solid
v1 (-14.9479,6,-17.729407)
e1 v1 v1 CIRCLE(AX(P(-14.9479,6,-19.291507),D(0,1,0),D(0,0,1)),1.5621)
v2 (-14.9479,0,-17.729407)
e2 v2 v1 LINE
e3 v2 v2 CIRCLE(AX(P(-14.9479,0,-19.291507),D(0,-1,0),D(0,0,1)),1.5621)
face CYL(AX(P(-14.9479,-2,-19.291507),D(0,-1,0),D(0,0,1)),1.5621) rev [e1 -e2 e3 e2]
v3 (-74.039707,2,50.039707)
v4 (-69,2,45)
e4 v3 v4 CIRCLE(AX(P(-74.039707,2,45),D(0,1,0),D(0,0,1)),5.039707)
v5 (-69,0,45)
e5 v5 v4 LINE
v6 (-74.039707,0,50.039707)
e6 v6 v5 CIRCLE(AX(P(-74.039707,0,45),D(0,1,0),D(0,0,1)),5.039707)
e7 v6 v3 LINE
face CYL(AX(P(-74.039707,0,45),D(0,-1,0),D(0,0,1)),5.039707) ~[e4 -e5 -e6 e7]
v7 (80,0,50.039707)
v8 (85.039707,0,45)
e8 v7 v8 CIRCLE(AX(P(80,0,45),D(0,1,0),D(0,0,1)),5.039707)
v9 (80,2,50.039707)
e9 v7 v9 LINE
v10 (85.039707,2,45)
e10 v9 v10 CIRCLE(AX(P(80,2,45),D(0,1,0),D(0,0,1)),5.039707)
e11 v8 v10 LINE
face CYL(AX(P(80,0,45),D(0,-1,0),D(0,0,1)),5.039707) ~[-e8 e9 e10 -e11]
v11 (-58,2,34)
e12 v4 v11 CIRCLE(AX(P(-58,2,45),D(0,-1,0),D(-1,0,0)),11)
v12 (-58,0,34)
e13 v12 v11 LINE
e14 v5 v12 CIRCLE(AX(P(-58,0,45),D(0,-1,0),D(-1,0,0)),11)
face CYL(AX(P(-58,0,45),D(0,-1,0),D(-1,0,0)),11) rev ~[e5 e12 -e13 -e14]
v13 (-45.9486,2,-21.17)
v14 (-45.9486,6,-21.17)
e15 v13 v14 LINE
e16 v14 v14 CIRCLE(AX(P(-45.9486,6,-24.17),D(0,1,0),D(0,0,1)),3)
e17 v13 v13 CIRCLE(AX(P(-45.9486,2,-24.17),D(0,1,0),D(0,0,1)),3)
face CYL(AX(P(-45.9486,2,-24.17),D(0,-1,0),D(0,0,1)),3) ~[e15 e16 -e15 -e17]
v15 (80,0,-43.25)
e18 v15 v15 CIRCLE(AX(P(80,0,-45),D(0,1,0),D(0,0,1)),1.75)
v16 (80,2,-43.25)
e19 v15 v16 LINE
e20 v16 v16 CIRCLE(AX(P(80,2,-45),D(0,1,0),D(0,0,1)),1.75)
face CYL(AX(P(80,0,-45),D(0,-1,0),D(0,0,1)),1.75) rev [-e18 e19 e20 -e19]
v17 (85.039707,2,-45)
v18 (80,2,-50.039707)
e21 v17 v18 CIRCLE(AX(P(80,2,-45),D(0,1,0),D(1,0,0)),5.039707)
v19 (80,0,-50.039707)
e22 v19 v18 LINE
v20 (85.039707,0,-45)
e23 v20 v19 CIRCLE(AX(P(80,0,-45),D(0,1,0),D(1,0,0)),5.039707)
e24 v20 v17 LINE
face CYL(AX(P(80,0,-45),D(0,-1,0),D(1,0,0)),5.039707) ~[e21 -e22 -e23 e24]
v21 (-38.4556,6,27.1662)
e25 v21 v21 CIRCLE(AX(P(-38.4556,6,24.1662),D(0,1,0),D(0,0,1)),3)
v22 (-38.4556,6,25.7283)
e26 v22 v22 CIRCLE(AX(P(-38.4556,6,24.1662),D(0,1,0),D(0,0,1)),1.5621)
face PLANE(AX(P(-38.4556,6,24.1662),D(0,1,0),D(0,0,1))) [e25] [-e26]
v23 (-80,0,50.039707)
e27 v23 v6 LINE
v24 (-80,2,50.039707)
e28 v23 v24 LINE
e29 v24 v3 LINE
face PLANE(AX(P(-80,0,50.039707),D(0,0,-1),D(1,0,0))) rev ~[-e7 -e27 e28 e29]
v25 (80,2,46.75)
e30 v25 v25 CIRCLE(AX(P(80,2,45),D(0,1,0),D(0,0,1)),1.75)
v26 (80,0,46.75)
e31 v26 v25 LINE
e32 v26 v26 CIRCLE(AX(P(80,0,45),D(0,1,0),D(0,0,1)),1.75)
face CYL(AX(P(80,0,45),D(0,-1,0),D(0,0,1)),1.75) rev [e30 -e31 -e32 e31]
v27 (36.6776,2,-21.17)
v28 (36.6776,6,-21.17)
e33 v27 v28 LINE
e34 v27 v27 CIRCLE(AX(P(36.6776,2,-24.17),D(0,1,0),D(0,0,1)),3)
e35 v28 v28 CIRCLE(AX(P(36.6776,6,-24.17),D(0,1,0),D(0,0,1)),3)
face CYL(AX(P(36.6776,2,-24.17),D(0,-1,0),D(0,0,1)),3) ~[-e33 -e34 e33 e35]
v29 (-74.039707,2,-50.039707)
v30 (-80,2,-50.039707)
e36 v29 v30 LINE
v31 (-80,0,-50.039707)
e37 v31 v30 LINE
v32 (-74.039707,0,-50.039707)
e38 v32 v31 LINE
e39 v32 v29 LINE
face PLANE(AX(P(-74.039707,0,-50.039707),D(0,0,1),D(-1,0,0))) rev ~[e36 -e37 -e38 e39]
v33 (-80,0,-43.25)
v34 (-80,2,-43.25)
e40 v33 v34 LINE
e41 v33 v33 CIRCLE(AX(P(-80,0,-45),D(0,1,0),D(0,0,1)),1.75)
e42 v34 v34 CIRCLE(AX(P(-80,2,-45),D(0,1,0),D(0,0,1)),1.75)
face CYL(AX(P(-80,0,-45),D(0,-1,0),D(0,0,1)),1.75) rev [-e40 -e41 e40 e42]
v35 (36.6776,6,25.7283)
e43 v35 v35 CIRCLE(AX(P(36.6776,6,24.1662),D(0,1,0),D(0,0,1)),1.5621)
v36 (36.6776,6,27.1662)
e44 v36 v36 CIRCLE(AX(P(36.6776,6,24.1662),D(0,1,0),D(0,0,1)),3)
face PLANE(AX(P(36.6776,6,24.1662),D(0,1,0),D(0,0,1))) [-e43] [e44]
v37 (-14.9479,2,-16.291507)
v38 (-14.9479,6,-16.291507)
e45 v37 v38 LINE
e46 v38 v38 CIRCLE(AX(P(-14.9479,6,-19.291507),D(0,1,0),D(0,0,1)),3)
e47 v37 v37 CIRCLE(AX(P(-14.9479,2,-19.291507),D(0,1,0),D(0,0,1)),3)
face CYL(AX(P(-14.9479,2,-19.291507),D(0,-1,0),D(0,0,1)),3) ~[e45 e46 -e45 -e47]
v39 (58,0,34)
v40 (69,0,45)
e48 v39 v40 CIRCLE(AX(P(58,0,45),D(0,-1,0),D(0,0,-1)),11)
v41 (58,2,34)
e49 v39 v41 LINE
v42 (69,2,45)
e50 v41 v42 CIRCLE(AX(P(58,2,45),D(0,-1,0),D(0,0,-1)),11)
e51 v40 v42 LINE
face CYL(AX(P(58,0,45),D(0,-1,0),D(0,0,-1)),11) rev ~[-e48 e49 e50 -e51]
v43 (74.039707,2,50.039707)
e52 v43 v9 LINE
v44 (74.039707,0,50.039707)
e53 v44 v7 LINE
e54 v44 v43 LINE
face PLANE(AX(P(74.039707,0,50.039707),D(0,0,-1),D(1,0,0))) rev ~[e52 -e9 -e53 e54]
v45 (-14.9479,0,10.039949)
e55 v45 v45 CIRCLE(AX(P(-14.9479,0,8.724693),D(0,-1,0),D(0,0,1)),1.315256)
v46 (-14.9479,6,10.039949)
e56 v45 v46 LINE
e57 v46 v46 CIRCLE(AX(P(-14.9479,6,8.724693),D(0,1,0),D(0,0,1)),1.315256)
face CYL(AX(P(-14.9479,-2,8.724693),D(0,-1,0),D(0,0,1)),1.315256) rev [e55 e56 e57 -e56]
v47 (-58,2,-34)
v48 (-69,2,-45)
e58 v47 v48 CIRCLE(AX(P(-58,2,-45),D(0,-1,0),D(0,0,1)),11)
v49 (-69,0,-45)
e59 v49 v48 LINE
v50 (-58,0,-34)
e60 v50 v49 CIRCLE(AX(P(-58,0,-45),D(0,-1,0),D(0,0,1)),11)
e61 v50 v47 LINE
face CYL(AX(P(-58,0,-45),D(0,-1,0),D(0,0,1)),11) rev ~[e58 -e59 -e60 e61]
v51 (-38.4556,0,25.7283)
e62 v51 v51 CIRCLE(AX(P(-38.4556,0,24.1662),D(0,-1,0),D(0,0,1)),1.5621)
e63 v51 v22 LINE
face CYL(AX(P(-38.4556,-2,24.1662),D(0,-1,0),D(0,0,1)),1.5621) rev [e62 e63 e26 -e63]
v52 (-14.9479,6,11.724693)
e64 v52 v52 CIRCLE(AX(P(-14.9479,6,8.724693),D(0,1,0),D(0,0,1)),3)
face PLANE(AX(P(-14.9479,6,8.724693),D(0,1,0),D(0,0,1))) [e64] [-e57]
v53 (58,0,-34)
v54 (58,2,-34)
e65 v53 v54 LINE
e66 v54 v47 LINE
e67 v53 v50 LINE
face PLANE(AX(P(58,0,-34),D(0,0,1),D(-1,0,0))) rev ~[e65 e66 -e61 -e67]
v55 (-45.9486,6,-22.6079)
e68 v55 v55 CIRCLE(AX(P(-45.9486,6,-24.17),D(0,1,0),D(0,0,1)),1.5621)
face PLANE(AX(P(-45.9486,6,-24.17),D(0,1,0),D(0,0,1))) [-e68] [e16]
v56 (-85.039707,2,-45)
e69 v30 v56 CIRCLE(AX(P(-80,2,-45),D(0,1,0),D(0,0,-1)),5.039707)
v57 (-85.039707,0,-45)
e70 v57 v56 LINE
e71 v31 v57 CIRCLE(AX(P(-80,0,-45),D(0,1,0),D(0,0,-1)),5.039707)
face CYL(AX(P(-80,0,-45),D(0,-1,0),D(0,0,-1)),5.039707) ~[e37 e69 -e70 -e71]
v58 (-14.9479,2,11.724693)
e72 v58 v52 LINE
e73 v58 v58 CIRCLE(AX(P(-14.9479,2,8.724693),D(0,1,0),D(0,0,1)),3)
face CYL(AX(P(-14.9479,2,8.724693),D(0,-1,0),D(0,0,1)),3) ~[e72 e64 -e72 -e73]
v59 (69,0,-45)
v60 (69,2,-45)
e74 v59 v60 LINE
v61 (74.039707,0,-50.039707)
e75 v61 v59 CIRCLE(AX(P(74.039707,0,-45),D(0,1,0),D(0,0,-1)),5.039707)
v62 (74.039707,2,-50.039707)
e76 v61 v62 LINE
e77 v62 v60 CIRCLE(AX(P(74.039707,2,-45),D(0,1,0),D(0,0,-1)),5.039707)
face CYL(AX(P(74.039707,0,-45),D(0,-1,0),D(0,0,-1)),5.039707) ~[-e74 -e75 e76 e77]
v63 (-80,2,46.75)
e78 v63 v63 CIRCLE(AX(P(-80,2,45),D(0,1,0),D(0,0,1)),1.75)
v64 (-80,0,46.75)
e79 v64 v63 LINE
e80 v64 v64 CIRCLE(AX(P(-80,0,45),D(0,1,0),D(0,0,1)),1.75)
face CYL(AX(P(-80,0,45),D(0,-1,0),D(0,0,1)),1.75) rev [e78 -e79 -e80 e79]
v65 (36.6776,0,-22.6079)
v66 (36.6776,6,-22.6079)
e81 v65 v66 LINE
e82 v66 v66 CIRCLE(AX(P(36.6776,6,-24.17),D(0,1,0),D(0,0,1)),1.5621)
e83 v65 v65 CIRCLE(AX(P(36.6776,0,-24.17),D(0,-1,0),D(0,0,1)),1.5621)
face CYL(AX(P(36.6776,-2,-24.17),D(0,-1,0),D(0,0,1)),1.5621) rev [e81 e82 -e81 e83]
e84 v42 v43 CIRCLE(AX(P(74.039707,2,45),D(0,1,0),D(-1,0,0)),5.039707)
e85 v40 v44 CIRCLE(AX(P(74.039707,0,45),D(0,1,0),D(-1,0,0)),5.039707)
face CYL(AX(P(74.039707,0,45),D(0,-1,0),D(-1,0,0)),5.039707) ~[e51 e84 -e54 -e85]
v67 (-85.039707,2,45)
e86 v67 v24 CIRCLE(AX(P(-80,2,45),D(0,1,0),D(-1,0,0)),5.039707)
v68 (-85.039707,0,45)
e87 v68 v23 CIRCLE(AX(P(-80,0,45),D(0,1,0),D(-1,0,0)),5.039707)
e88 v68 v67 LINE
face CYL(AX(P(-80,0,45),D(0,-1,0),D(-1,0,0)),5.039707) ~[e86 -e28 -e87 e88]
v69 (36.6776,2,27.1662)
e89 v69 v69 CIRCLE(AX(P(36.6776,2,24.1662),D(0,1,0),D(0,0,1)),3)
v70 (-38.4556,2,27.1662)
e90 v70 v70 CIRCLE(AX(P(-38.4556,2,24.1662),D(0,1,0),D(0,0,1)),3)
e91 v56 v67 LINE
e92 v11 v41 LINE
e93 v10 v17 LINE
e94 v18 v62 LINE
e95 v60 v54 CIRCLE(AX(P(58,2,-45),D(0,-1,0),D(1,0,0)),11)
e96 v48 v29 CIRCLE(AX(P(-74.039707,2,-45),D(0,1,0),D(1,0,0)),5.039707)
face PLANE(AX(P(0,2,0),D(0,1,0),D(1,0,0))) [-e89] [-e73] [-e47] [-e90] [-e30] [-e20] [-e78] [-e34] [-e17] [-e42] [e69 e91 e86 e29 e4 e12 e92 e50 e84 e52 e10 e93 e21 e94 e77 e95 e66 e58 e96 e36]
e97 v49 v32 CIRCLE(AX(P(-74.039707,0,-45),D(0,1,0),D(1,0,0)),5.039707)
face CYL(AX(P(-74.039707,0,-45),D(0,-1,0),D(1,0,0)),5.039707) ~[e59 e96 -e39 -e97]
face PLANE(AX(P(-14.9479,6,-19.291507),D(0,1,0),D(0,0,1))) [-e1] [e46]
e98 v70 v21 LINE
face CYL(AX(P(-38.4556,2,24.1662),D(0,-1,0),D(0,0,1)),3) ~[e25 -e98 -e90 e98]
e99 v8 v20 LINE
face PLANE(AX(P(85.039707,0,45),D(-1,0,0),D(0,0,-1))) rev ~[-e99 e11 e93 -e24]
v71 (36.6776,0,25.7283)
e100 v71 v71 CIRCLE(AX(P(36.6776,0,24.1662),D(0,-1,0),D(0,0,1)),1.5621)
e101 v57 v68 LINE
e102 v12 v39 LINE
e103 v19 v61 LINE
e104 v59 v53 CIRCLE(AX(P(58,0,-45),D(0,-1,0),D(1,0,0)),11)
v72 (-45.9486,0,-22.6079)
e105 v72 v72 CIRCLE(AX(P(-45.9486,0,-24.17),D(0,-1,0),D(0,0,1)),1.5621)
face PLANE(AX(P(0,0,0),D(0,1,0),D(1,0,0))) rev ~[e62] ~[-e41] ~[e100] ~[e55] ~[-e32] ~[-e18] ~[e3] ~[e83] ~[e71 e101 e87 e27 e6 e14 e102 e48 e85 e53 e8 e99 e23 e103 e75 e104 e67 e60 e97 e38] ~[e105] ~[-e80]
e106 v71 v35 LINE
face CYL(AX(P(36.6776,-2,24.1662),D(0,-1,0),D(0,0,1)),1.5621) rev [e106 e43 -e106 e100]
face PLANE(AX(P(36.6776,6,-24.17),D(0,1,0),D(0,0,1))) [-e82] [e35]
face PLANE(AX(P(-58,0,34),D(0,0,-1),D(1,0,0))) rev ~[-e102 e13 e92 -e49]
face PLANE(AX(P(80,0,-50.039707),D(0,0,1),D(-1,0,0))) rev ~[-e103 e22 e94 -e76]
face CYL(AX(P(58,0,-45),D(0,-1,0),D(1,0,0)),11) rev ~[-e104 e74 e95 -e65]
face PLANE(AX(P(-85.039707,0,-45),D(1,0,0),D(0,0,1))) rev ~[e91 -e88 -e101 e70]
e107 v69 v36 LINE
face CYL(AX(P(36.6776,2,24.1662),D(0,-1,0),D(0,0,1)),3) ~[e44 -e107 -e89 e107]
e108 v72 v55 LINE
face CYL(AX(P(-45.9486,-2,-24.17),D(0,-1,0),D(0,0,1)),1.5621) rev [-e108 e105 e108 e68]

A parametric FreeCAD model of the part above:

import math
import FreeCAD as App
import Part
import Sketcher

V = App.Vector

doc = App.newDocument("Part")
params = doc.addObject("Spreadsheet::Sheet", "Params")
for row, (alias, value) in enumerate([
    ("sketch1_radius", "11 mm"),
    ("sketch1_diameter", "3.5 mm"),
    ("sketch1_width", "116 mm"),
    ("sketch1_height", "90 mm"),
    ("pad1_length", "2 mm"),
    ("sketch2_diameter", "6 mm"),
    ("pad2_length", "4 mm"),
    ("pocket1_length", "4 mm"),
], start=1):
    params.set(f"A{row}", alias)
    params.set(f"B{row}", "=" + value)
    params.setAlias(f"B{row}", alias)

body = doc.addObject("PartDesign::Body", "Body")

# Sketch on XZ plane
sketch1 = doc.addObject("Sketcher::SketchObject", "Sketch")
body.addObject(sketch1)
sketch1.AttachmentSupport = (doc.XZ_Plane, [""])
sketch1.MapMode = "FlatFace"
sketch1.addGeometry([
    Part.LineSegment(V(80, -50, 0), V(74, -50, 0)),  # 0
    Part.ArcOfCircle(Part.Circle(V(74, -45, 0), V(0, 0, 1), 5), math.radians(180), math.radians(270)),  # 1
    Part.ArcOfCircle(Part.Circle(V(58, -45, 0), V(0, 0, 1), 11), math.radians(0), math.radians(90)),  # 2
    Part.LineSegment(V(58, -34, 0), V(-58, -34, 0)),  # 3
    Part.ArcOfCircle(Part.Circle(V(-58, -45, 0), V(0, 0, 1), 11), math.radians(90), math.radians(180)),  # 4
    Part.ArcOfCircle(Part.Circle(V(-74, -45, 0), V(0, 0, 1), 5), math.radians(-90), math.radians(0)),  # 5
    Part.LineSegment(V(-74, -50, 0), V(-80, -50, 0)),  # 6
    Part.ArcOfCircle(Part.Circle(V(-80, -45, 0), V(0, 0, 1), 5), math.radians(180), math.radians(270)),  # 7
    Part.LineSegment(V(-85, -45, 0), V(-85, 45, 0)),  # 8
    Part.ArcOfCircle(Part.Circle(V(-80, 45, 0), V(0, 0, 1), 5), math.radians(90), math.radians(180)),  # 9
    Part.LineSegment(V(-80, 50, 0), V(-74, 50, 0)),  # 10
    Part.ArcOfCircle(Part.Circle(V(-74, 45, 0), V(0, 0, 1), 5), math.radians(0), math.radians(90)),  # 11
    Part.ArcOfCircle(Part.Circle(V(-58, 45, 0), V(0, 0, 1), 11), math.radians(180), math.radians(270)),  # 12
    Part.LineSegment(V(-58, 34, 0), V(58, 34, 0)),  # 13
    Part.ArcOfCircle(Part.Circle(V(58, 45, 0), V(0, 0, 1), 11), math.radians(-90), math.radians(0)),  # 14
    Part.ArcOfCircle(Part.Circle(V(74, 45, 0), V(0, 0, 1), 5), math.radians(90), math.radians(180)),  # 15
    Part.LineSegment(V(74, 50, 0), V(80, 50, 0)),  # 16
    Part.ArcOfCircle(Part.Circle(V(80, 45, 0), V(0, 0, 1), 5), math.radians(0), math.radians(90)),  # 17
    Part.LineSegment(V(85, 45, 0), V(85, -45, 0)),  # 18
    Part.ArcOfCircle(Part.Circle(V(80, -45, 0), V(0, 0, 1), 5), math.radians(-90), math.radians(0)),  # 19
    Part.Circle(V(-80, 45, 0), V(0, 0, 1), 1.8),  # 20
    Part.Circle(V(80, 45, 0), V(0, 0, 1), 1.8),  # 21
    Part.Circle(V(-80, -45, 0), V(0, 0, 1), 1.8),  # 22
    Part.Circle(V(80, -45, 0), V(0, 0, 1), 1.8),  # 23
], False)
sketch1.addConstraint([
    Sketcher.Constraint("Tangent", 0, 2, 1, 2),
    Sketcher.Constraint("Tangent", 1, 1, 2, 1),
    Sketcher.Constraint("Tangent", 2, 2, 3, 1),
    Sketcher.Constraint("Tangent", 3, 2, 4, 1),
    Sketcher.Constraint("Tangent", 4, 2, 5, 2),
    Sketcher.Constraint("Tangent", 5, 1, 6, 1),
    Sketcher.Constraint("Tangent", 6, 2, 7, 2),
    Sketcher.Constraint("Tangent", 7, 1, 8, 1),
    Sketcher.Constraint("Tangent", 8, 2, 9, 2),
    Sketcher.Constraint("Tangent", 9, 1, 10, 1),
    Sketcher.Constraint("Tangent", 10, 2, 11, 2),
    Sketcher.Constraint("Tangent", 11, 1, 12, 1),
    Sketcher.Constraint("Tangent", 12, 2, 13, 1),
    Sketcher.Constraint("Tangent", 13, 2, 14, 1),
    Sketcher.Constraint("Tangent", 14, 2, 15, 2),
    Sketcher.Constraint("Tangent", 15, 1, 16, 1),
    Sketcher.Constraint("Tangent", 16, 2, 17, 2),
    Sketcher.Constraint("Tangent", 17, 1, 18, 1),
    Sketcher.Constraint("Tangent", 18, 2, 19, 2),
    Sketcher.Constraint("Tangent", 19, 1, 0, 1),
    Sketcher.Constraint("Horizontal", 0),
    Sketcher.Constraint("Horizontal", 3),
    Sketcher.Constraint("Horizontal", 6),
    Sketcher.Constraint("Vertical", 8),
    Sketcher.Constraint("Horizontal", 10),
    Sketcher.Constraint("Horizontal", 13),
    Sketcher.Constraint("Horizontal", 16),
    Sketcher.Constraint("Vertical", 18),
    Sketcher.Constraint("Coincident", 20, 3, 9, 3),
    Sketcher.Constraint("Coincident", 21, 3, 17, 3),
    Sketcher.Constraint("Coincident", 22, 3, 7, 3),
    Sketcher.Constraint("Coincident", 23, 3, 19, 3),
    Sketcher.Constraint("Equal", 2, 4),
    Sketcher.Constraint("Equal", 1, 5),
    Sketcher.Constraint("Equal", 5, 7),
    Sketcher.Constraint("Equal", 7, 9),
    Sketcher.Constraint("Equal", 9, 11),
    Sketcher.Constraint("Equal", 4, 12),
    Sketcher.Constraint("Equal", 12, 14),
    Sketcher.Constraint("Equal", 11, 15),
    Sketcher.Constraint("Equal", 15, 17),
    Sketcher.Constraint("Equal", 17, 19),
    Sketcher.Constraint("Equal", 20, 21),
    Sketcher.Constraint("Equal", 21, 22),
    Sketcher.Constraint("Equal", 22, 23),
    Sketcher.Constraint("Symmetric", 1, 3, 11, 3, -1, 1),
    Sketcher.Constraint("Symmetric", 4, 3, 14, 3, -1, 1),
    Sketcher.Constraint("Symmetric", 7, 3, 17, 3, -1, 1),
    Sketcher.Constraint("Symmetric", 1, 3, 5, 3, -2),
    Sketcher.Constraint("Horizontal", 1, 3, 2, 3),
    Sketcher.Constraint("Radius", 2, 11.0),
    Sketcher.Constraint("Diameter", 20, 3.5),
    Sketcher.Constraint("DistanceX", 3, 2, 3, 1, 116.0),
    Sketcher.Constraint("DistanceY", 8, 1, 8, 2, 90.0),
    Sketcher.Constraint("DistanceX", 7, 3, -1, 1, 80.0),
    Sketcher.Constraint("Radius", 1, 5.039707),
])
sketch1.setExpression("Constraints[50]", "Params.sketch1_radius")
sketch1.setExpression("Constraints[51]", "Params.sketch1_diameter")
sketch1.setExpression("Constraints[52]", "Params.sketch1_width")
sketch1.setExpression("Constraints[53]", "Params.sketch1_height")
pad1 = doc.addObject("PartDesign::Pad", "Pad")
body.addObject(pad1)
pad1.Profile = sketch1
pad1.setExpression("Length", "Params.pad1_length")
pad1.Reversed = True

# Sketch on XZ plane
sketch2 = doc.addObject("Sketcher::SketchObject", "Sketch001")
body.addObject(sketch2)
sketch2.AttachmentSupport = (doc.XZ_Plane, [""])
sketch2.MapMode = "FlatFace"
sketch2.AttachmentOffset = App.Placement(V(0, 0, -2), App.Rotation())
sketch2.addGeometry([
    Part.Circle(V(-14.9, -19.3, 0), V(0, 0, 1), 3),  # 0
    Part.Circle(V(-14.9, -19.3, 0), V(0, 0, 1), 1.6),  # 1
    Part.Circle(V(-14.9, 8.7, 0), V(0, 0, 1), 3),  # 2
    Part.Circle(V(-14.9, 8.7, 0), V(0, 0, 1), 1.3),  # 3
    Part.Circle(V(-38.5, 24.2, 0), V(0, 0, 1), 3),  # 4
    Part.Circle(V(-38.5, 24.2, 0), V(0, 0, 1), 1.6),  # 5
    Part.Circle(V(36.7, 24.2, 0), V(0, 0, 1), 3),  # 6
    Part.Circle(V(36.7, 24.2, 0), V(0, 0, 1), 1.6),  # 7
    Part.Circle(V(36.7, -24.2, 0), V(0, 0, 1), 3),  # 8
    Part.Circle(V(36.7, -24.2, 0), V(0, 0, 1), 1.6),  # 9
    Part.Circle(V(-45.9, -24.2, 0), V(0, 0, 1), 3),  # 10
    Part.Circle(V(-45.9, -24.2, 0), V(0, 0, 1), 1.6),  # 11
], False)
sketch2.addConstraint([
    Sketcher.Constraint("Coincident", 1, 3, 0, 3),
    Sketcher.Constraint("Coincident", 3, 3, 2, 3),
    Sketcher.Constraint("Coincident", 5, 3, 4, 3),
    Sketcher.Constraint("Coincident", 7, 3, 6, 3),
    Sketcher.Constraint("Coincident", 9, 3, 8, 3),
    Sketcher.Constraint("Coincident", 11, 3, 10, 3),
    Sketcher.Constraint("Equal", 0, 2),
    Sketcher.Constraint("Equal", 2, 4),
    Sketcher.Constraint("Equal", 1, 5),
    Sketcher.Constraint("Equal", 4, 6),
    Sketcher.Constraint("Equal", 5, 7),
    Sketcher.Constraint("Equal", 6, 8),
    Sketcher.Constraint("Equal", 7, 9),
    Sketcher.Constraint("Equal", 8, 10),
    Sketcher.Constraint("Equal", 9, 11),
    Sketcher.Constraint("Horizontal", 5, 3, 6, 3),
    Sketcher.Constraint("Horizontal", 9, 3, 10, 3),
    Sketcher.Constraint("Vertical", 1, 3, 2, 3),
    Sketcher.Constraint("Vertical", 7, 3, 8, 3),
    Sketcher.Constraint("Diameter", 0, 6.0),
    Sketcher.Constraint("Diameter", 1, 3.1242),
    Sketcher.Constraint("DistanceY", 8, 3, -1, 1, 24.17),
    Sketcher.Constraint("Diameter", 3, 2.630513),
    Sketcher.Constraint("DistanceX", 10, 3, 4, 3, 7.493),
    Sketcher.Constraint("DistanceX", 0, 3, -1, 1, 14.9479),
    Sketcher.Constraint("DistanceX", 4, 3, -1, 1, 38.4556),
    Sketcher.Constraint("DistanceY", -1, 1, 4, 3, 24.1662),
    Sketcher.Constraint("DistanceX", -1, 1, 6, 3, 36.6776),
    Sketcher.Constraint("DistanceY", 0, 3, 2, 3, 28.0162),
    Sketcher.Constraint("DistanceY", 0, 3, -1, 1, 19.291507),
])
sketch2.setExpression("Constraints[19]", "Params.sketch2_diameter")
pad2 = doc.addObject("PartDesign::Pad", "Pad001")
body.addObject(pad2)
pad2.Profile = sketch2
pad2.setExpression("Length", "Params.pad2_length")
pad2.Reversed = True

# Sketch on XZ plane
sketch3 = doc.addObject("Sketcher::SketchObject", "Sketch002")
body.addObject(sketch3)
sketch3.AttachmentSupport = (doc.XZ_Plane, [""])
sketch3.MapMode = "FlatFace"
sketch3.AttachmentOffset = App.Placement(V(0, 0, 2), App.Rotation())
sketch3.addGeometry([
    Part.Circle(V(-45.9, -24.2, 0), V(0, 0, 1), 1.6),  # 0
    Part.Circle(V(-14.9, -19.3, 0), V(0, 0, 1), 1.6),  # 1
    Part.Circle(V(36.7, -24.2, 0), V(0, 0, 1), 1.6),  # 2
    Part.Circle(V(36.7, 24.2, 0), V(0, 0, 1), 1.6),  # 3
    Part.Circle(V(-14.9, 8.7, 0), V(0, 0, 1), 1.3),  # 4
    Part.Circle(V(-38.5, 24.2, 0), V(0, 0, 1), 1.6),  # 5
], False)
sketch3.addConstraint([
    Sketcher.Constraint("Equal", 0, 1),
    Sketcher.Constraint("Equal", 1, 2),
    Sketcher.Constraint("Equal", 2, 3),
    Sketcher.Constraint("Equal", 3, 5),
    Sketcher.Constraint("Horizontal", 0, 3, 2, 3),
    Sketcher.Constraint("Horizontal", 3, 3, 5, 3),
    Sketcher.Constraint("Vertical", 2, 3, 3, 3),
    Sketcher.Constraint("Vertical", 1, 3, 4, 3),
    Sketcher.Constraint("Diameter", 0, 3.1242),
    Sketcher.Constraint("DistanceY", 0, 3, -1, 1, 24.17),
    Sketcher.Constraint("Diameter", 4, 2.630513),
    Sketcher.Constraint("DistanceX", 0, 3, 5, 3, 7.493),
    Sketcher.Constraint("DistanceX", 0, 3, -1, 1, 45.9486),
    Sketcher.Constraint("DistanceX", 1, 3, -1, 1, 14.9479),
    Sketcher.Constraint("DistanceX", -1, 1, 2, 3, 36.6776),
    Sketcher.Constraint("DistanceY", -1, 1, 3, 3, 24.1662),
    Sketcher.Constraint("DistanceY", 1, 3, 4, 3, 28.0162),
    Sketcher.Constraint("DistanceY", 1, 3, -1, 1, 19.291507),
])
pocket1 = doc.addObject("PartDesign::Pocket", "Pocket")
body.addObject(pocket1)
pocket1.Profile = sketch3
pocket1.setExpression("Length", "Params.pocket1_length")

doc.recompute()
